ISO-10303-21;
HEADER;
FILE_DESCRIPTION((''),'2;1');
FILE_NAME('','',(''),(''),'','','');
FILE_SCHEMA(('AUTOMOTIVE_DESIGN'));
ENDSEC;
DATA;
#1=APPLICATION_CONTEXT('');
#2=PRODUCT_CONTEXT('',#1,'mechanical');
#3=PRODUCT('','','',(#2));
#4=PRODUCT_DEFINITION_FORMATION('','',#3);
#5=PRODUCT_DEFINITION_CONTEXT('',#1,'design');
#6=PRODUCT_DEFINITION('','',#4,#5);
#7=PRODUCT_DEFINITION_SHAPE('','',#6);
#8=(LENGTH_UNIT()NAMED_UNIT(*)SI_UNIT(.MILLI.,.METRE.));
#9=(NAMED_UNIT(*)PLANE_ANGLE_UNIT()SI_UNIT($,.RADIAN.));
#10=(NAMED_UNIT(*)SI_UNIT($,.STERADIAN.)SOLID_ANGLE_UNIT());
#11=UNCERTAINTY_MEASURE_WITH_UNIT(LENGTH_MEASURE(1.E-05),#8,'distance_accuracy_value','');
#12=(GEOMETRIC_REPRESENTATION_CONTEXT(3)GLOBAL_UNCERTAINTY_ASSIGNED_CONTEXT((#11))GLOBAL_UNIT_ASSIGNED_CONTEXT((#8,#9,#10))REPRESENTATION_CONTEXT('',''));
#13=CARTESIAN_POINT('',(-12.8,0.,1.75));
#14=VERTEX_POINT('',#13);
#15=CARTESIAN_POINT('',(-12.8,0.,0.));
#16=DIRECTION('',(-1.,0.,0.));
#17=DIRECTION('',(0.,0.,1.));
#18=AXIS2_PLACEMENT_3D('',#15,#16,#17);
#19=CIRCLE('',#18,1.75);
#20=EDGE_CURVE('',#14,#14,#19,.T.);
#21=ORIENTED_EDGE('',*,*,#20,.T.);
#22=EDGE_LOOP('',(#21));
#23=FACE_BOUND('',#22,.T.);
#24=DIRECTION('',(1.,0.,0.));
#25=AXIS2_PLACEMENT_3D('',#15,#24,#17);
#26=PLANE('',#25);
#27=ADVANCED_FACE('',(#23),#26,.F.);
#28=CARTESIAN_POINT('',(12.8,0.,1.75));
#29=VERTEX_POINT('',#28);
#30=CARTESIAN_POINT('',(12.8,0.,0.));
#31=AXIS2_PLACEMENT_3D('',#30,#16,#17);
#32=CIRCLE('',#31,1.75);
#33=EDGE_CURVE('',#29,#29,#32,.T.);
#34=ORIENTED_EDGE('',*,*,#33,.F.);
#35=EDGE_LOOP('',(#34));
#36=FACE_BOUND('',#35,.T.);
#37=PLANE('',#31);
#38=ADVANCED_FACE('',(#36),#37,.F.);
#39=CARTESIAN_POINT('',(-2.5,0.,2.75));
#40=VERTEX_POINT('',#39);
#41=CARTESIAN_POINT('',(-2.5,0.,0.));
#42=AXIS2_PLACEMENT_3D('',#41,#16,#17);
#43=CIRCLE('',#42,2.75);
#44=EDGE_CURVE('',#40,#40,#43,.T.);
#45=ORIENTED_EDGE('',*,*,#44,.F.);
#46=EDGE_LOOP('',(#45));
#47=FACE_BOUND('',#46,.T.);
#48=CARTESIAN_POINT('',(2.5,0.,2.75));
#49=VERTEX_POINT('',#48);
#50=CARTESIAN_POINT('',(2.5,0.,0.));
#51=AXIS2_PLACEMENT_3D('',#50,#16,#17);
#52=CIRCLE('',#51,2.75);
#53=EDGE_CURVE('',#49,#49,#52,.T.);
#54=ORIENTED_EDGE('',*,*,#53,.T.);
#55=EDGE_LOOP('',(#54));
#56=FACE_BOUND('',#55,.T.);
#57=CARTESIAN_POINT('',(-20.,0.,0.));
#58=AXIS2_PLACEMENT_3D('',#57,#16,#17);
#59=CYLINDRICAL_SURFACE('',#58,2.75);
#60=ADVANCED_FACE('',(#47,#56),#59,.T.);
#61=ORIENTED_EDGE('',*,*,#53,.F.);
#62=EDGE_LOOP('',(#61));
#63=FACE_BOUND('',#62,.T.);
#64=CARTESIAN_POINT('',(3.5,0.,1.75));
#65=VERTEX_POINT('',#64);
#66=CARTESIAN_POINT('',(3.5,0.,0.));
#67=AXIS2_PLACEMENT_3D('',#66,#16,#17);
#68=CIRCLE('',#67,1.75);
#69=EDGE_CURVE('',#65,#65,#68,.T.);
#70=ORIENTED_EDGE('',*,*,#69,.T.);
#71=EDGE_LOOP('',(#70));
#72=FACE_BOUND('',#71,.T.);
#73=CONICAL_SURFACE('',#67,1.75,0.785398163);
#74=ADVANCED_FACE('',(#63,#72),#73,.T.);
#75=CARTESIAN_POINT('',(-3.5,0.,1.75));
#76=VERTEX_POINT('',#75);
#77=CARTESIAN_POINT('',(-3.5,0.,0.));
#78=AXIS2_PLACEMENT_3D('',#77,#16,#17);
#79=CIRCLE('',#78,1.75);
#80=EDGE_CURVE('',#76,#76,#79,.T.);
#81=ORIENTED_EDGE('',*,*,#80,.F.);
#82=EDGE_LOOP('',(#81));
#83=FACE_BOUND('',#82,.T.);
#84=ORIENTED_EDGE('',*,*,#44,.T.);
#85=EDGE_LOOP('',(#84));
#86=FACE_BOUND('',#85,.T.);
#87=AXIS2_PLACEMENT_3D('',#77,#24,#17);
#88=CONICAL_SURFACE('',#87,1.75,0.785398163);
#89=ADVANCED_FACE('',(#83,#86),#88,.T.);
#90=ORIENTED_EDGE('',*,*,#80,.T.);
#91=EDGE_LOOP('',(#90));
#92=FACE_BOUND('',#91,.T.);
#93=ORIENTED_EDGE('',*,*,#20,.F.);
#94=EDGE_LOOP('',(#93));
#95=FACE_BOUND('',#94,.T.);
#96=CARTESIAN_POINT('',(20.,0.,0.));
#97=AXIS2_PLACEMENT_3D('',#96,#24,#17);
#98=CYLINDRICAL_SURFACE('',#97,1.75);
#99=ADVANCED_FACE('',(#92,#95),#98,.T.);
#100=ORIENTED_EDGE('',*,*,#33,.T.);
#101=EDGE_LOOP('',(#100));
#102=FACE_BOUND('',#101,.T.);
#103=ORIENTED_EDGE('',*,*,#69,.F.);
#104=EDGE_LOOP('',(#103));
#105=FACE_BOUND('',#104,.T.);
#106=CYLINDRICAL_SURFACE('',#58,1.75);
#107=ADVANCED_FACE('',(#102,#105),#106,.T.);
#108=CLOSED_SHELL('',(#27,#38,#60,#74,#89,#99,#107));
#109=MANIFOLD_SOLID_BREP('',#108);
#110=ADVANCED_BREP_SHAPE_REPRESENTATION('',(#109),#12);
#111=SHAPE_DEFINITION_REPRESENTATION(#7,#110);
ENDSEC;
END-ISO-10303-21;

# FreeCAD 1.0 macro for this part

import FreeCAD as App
import Part
import Sketcher
Q = App.Units.Quantity


def add_polygon(sketch, points):
    """Adds a closed chain of lines whose ends are joined by coincident constraints."""
    first, n = sketch.GeometryCount, len(points)
    for a, b in zip(points, points[1:] + points[:1]):
        sketch.addGeometry(Part.LineSegment(App.Vector(*a, 0), App.Vector(*b, 0)), False)
    for i in range(n):
        sketch.addConstraint(Sketcher.Constraint("Coincident", first + i, 2, first + (i + 1) % n, 1))

doc = App.newDocument("Part")
body = doc.addObject("PartDesign::Body", "Body")

sketch1 = doc.addObject("Sketcher::SketchObject", "Sketch")
body.addObject(sketch1)
sketch1.AttachmentSupport = (doc.XY_Plane, [""])
sketch1.MapMode = "FlatFace"
add_polygon(sketch1, [(12.8, 0), (12.8, 1.8), (3.5, 1.8), (2.5, 2.8), (0, 2.8), (0, 0)])
sketch1.addConstraint([
    Sketcher.Constraint("Vertical", 0),
    Sketcher.Constraint("Horizontal", 1),
    Sketcher.Constraint("Horizontal", 3),
    Sketcher.Constraint("Vertical", 4),
    Sketcher.Constraint("Horizontal", 5),
    Sketcher.Constraint("Coincident", 4, 2, -1, 1),
    Sketcher.Constraint("Angle", 2, Q("135 deg")),
    Sketcher.Constraint("DistanceX", 1, 2, 1, 1, 9.3),
    Sketcher.Constraint("DistanceX", 3, 2, 3, 1, 2.5),
    Sketcher.Constraint("DistanceX", 5, 1, 5, 2, 12.8),
    Sketcher.Constraint("DistanceY", 0, 1, 0, 2, 1.75),
])
revolution = doc.addObject("PartDesign::Revolution", "Revolution")
body.addObject(revolution)
revolution.Profile = sketch1
revolution.ReferenceAxis = (sketch1, ["H_Axis"])
revolution.Angle = 360
doc.recompute()

mirrored = doc.addObject("PartDesign::Mirrored", "Mirrored")
body.addObject(mirrored)
mirrored.Originals = [revolution]
mirrored.MirrorPlane = (doc.YZ_Plane, [""])
body.Tip = mirrored

doc.recompute()
